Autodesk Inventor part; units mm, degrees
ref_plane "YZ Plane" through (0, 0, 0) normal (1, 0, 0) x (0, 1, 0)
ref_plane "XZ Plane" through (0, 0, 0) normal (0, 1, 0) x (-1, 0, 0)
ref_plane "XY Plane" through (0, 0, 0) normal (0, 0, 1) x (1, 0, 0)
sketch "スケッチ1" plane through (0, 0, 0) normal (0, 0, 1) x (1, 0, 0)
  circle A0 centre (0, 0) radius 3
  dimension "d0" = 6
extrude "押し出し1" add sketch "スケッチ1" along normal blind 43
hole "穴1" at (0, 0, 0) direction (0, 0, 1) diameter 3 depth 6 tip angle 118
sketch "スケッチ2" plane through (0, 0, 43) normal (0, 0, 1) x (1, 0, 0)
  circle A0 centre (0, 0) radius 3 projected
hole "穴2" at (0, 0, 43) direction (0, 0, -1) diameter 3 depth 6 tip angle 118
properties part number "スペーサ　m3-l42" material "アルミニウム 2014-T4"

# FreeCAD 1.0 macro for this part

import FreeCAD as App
import Part
import Sketcher

V = App.Vector
Q = App.Units.Quantity

doc = App.newDocument("Part")
body = doc.addObject("PartDesign::Body", "Body")

# Sketch on XY plane
sketch1 = doc.addObject("Sketcher::SketchObject", "Sketch")
body.addObject(sketch1)
sketch1.AttachmentSupport = (doc.XY_Plane, [""])
sketch1.MapMode = "FlatFace"
sketch1.addGeometry(Part.Circle(V(0, 0, 0), V(0, 0, 1), 3), False)
sketch1.addConstraint([
    Sketcher.Constraint("Coincident", 0, 3, -1, 1),
    Sketcher.Constraint("Diameter", 0, Q("6 mm")),
])
pad1 = doc.addObject("PartDesign::Pad", "Pad")
body.addObject(pad1)
pad1.Profile = sketch1
pad1.Length = 43

# Sketch on XY plane
sketch2 = doc.addObject("Sketcher::SketchObject", "Sketch001")
body.addObject(sketch2)
sketch2.AttachmentSupport = (doc.XY_Plane, [""])
sketch2.MapMode = "FlatFace"
sketch2.addGeometry(Part.Circle(V(0, 0, 0), V(0, 0, 1), 1.5), False)
sketch2.addConstraint([
    Sketcher.Constraint("Coincident", 0, 3, -1, 1),
    Sketcher.Constraint("Diameter", 0, Q("3 mm")),
])
doc.recompute()
hole = doc.addObject("PartDesign::Hole", "Hole")
body.addObject(hole)
hole.Profile = sketch2
hole.ThreadType = "None"
hole.Diameter = 3
hole.DepthType = "Dimension"
hole.Depth = 6
hole.DrillPoint = "Angled"
hole.DrillPointAngle = 118
hole.Reversed = True

# Sketch on XY plane
sketch3 = doc.addObject("Sketcher::SketchObject", "Sketch002")
body.addObject(sketch3)
sketch3.AttachmentSupport = (doc.XY_Plane, [""])
sketch3.MapMode = "FlatFace"
sketch3.AttachmentOffset = App.Placement(V(0, 0, 43), App.Rotation())
sketch3.addGeometry(Part.Circle(V(0, 0, 0), V(0, 0, 1), 1.5), False)
sketch3.addConstraint([
    Sketcher.Constraint("Coincident", 0, 3, -1, 1),
    Sketcher.Constraint("Diameter", 0, Q("3 mm")),
])
doc.recompute()
hole2 = doc.addObject("PartDesign::Hole", "Hole001")
body.addObject(hole2)
hole2.Profile = sketch3
hole2.ThreadType = "None"
hole2.Diameter = 3
hole2.DepthType = "Dimension"
hole2.Depth = 6
hole2.DrillPoint = "Angled"
hole2.DrillPointAngle = 118

doc.recompute()
